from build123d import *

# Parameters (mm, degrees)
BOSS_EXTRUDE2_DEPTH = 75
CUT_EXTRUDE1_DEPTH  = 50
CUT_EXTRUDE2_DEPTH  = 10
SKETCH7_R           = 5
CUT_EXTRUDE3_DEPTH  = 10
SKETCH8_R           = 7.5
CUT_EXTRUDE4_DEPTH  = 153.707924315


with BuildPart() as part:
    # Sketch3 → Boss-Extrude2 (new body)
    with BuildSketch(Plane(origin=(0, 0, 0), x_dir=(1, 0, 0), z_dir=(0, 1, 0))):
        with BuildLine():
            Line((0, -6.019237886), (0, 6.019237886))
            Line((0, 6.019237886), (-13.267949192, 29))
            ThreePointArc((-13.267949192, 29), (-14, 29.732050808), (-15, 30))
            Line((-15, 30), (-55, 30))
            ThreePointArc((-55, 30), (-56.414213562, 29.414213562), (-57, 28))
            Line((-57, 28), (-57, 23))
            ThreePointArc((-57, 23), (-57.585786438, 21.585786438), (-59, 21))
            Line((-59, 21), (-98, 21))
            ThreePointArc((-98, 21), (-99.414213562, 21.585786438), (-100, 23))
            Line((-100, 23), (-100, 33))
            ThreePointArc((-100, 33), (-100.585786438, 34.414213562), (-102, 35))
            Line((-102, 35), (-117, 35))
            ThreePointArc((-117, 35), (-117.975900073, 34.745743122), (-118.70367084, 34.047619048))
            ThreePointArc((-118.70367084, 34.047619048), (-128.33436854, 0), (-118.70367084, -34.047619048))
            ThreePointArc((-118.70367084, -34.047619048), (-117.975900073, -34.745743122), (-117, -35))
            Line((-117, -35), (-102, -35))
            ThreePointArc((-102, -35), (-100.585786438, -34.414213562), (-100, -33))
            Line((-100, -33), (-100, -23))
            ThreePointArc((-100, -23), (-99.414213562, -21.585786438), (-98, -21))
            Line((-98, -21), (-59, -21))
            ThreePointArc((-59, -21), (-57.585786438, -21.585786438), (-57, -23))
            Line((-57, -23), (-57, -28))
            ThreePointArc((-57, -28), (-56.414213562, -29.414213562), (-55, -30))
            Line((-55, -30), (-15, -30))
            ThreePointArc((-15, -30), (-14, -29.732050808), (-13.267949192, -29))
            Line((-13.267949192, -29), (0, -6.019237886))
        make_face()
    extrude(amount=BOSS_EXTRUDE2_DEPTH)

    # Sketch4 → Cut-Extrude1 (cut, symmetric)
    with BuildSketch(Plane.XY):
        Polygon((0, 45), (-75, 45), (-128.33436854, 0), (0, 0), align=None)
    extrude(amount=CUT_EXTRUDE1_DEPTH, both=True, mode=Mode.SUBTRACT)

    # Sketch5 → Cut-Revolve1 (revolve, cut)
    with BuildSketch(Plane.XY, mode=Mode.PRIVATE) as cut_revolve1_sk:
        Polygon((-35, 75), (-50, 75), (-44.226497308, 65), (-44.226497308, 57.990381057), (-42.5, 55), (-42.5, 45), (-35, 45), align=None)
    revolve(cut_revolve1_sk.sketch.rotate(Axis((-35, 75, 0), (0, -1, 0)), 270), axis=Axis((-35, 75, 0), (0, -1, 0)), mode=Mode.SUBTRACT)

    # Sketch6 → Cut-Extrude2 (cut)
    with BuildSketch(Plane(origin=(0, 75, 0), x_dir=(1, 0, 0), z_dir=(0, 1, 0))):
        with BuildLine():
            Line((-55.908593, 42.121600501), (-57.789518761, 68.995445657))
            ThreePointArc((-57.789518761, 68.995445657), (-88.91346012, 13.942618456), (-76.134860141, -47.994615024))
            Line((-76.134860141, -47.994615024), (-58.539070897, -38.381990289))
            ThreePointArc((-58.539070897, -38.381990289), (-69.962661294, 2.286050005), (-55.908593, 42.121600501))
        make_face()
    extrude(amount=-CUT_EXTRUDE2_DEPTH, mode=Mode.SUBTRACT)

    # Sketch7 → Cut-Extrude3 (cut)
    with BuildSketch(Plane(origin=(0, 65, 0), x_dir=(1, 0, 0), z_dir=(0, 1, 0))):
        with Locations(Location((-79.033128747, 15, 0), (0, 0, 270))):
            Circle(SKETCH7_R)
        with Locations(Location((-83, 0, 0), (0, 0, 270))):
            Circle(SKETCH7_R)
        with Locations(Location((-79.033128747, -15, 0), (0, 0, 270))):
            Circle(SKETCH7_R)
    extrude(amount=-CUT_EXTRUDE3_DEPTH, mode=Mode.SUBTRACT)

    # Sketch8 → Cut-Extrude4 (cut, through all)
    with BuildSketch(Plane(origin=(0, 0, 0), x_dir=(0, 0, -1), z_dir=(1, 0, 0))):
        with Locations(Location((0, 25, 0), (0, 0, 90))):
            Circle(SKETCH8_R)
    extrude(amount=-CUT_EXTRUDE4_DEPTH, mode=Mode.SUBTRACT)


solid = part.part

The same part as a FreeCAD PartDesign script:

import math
import FreeCAD as App
import Part
import Sketcher
Q = App.Units.Quantity

doc = App.newDocument("Part")
body = doc.addObject("PartDesign::Body", "Body")

sketch1 = body.newObject("Sketcher::SketchObject", "Sketch")
sketch1.AttachmentSupport = (doc.getObject("XZ_Plane"), [""])
sketch1.MapMode = "FlatFace"
sketch1.addGeometry(Part.LineSegment(App.Vector(0, 6, 0), App.Vector(0, -6, 0)), False)
sketch1.addGeometry(Part.LineSegment(App.Vector(0, -6, 0), App.Vector(-13.3, -29, 0)), False)
sketch1.addGeometry(Part.ArcOfCircle(Part.Circle(App.Vector(-15, -28, 0), App.Vector(0, 0, 1), 2), math.radians(-90), math.radians(-30)), False)
sketch1.addGeometry(Part.LineSegment(App.Vector(-15, -30, 0), App.Vector(-55, -30, 0)), False)
sketch1.addGeometry(Part.ArcOfCircle(Part.Circle(App.Vector(-55, -28, 0), App.Vector(0, 0, 1), 2), math.radians(-180), math.radians(-90)), False)
sketch1.addGeometry(Part.LineSegment(App.Vector(-57, -28, 0), App.Vector(-57, -23, 0)), False)
sketch1.addGeometry(Part.ArcOfCircle(Part.Circle(App.Vector(-59, -23, 0), App.Vector(0, 0, 1), 2), math.radians(0), math.radians(90)), False)
sketch1.addGeometry(Part.LineSegment(App.Vector(-59, -21, 0), App.Vector(-98, -21, 0)), False)
sketch1.addGeometry(Part.ArcOfCircle(Part.Circle(App.Vector(-98, -23, 0), App.Vector(0, 0, 1), 2), math.radians(90), math.radians(180)), False)
sketch1.addGeometry(Part.LineSegment(App.Vector(-100, -23, 0), App.Vector(-100, -33, 0)), False)
sketch1.addGeometry(Part.ArcOfCircle(Part.Circle(App.Vector(-102, -33, 0), App.Vector(0, 0, 1), 2), math.radians(-90), math.radians(0)), False)
sketch1.addGeometry(Part.LineSegment(App.Vector(-102, -35, 0), App.Vector(-117, -35, 0)), False)
sketch1.addGeometry(Part.ArcOfCircle(Part.Circle(App.Vector(-117, -33, 0), App.Vector(0, 0, 1), 2), math.radians(-148), math.radians(-90)), False)
sketch1.addGeometry(Part.ArcOfCircle(Part.Circle(App.Vector(-63.3, 0, 0), App.Vector(0, 0, 1), 65), math.radians(148), math.radians(212)), False)
sketch1.addGeometry(Part.ArcOfCircle(Part.Circle(App.Vector(-117, 33, 0), App.Vector(0, 0, 1), 2), math.radians(90), math.radians(148)), False)
sketch1.addGeometry(Part.LineSegment(App.Vector(-117, 35, 0), App.Vector(-102, 35, 0)), False)
sketch1.addGeometry(Part.ArcOfCircle(Part.Circle(App.Vector(-102, 33, 0), App.Vector(0, 0, 1), 2), math.radians(0), math.radians(90)), False)
sketch1.addGeometry(Part.LineSegment(App.Vector(-100, 33, 0), App.Vector(-100, 23, 0)), False)
sketch1.addGeometry(Part.ArcOfCircle(Part.Circle(App.Vector(-98, 23, 0), App.Vector(0, 0, 1), 2), math.radians(-180), math.radians(-90)), False)
sketch1.addGeometry(Part.LineSegment(App.Vector(-98, 21, 0), App.Vector(-59, 21, 0)), False)
sketch1.addGeometry(Part.ArcOfCircle(Part.Circle(App.Vector(-59, 23, 0), App.Vector(0, 0, 1), 2), math.radians(-90), math.radians(0)), False)
sketch1.addGeometry(Part.LineSegment(App.Vector(-57, 23, 0), App.Vector(-57, 28, 0)), False)
sketch1.addGeometry(Part.ArcOfCircle(Part.Circle(App.Vector(-55, 28, 0), App.Vector(0, 0, 1), 2), math.radians(90), math.radians(180)), False)
sketch1.addGeometry(Part.LineSegment(App.Vector(-55, 30, 0), App.Vector(-15, 30, 0)), False)
sketch1.addGeometry(Part.ArcOfCircle(Part.Circle(App.Vector(-15, 28, 0), App.Vector(0, 0, 1), 2), math.radians(30), math.radians(90)), False)
sketch1.addGeometry(Part.LineSegment(App.Vector(-13.3, 29, 0), App.Vector(0, 6, 0)), False)
sketch1.addConstraint(Sketcher.Constraint("Coincident", 0, 2, 1, 1))
sketch1.addConstraint(Sketcher.Constraint("Tangent", 1, 2, 2, 2))
sketch1.addConstraint(Sketcher.Constraint("Tangent", 2, 1, 3, 1))
sketch1.addConstraint(Sketcher.Constraint("Tangent", 3, 2, 4, 2))
sketch1.addConstraint(Sketcher.Constraint("Tangent", 4, 1, 5, 1))
sketch1.addConstraint(Sketcher.Constraint("Tangent", 5, 2, 6, 1))
sketch1.addConstraint(Sketcher.Constraint("Tangent", 6, 2, 7, 1))
sketch1.addConstraint(Sketcher.Constraint("Tangent", 7, 2, 8, 1))
sketch1.addConstraint(Sketcher.Constraint("Tangent", 8, 2, 9, 1))
sketch1.addConstraint(Sketcher.Constraint("Tangent", 9, 2, 10, 2))
sketch1.addConstraint(Sketcher.Constraint("Tangent", 10, 1, 11, 1))
sketch1.addConstraint(Sketcher.Constraint("Tangent", 11, 2, 12, 2))
sketch1.addConstraint(Sketcher.Constraint("Tangent", 12, 1, 13, 2))
sketch1.addConstraint(Sketcher.Constraint("Tangent", 13, 1, 14, 2))
sketch1.addConstraint(Sketcher.Constraint("Tangent", 14, 1, 15, 1))
sketch1.addConstraint(Sketcher.Constraint("Tangent", 15, 2, 16, 2))
sketch1.addConstraint(Sketcher.Constraint("Tangent", 16, 1, 17, 1))
sketch1.addConstraint(Sketcher.Constraint("Tangent", 17, 2, 18, 1))
sketch1.addConstraint(Sketcher.Constraint("Tangent", 18, 2, 19, 1))
sketch1.addConstraint(Sketcher.Constraint("Tangent", 19, 2, 20, 1))
sketch1.addConstraint(Sketcher.Constraint("Tangent", 20, 2, 21, 1))
sketch1.addConstraint(Sketcher.Constraint("Tangent", 21, 2, 22, 2))
sketch1.addConstraint(Sketcher.Constraint("Tangent", 22, 1, 23, 1))
sketch1.addConstraint(Sketcher.Constraint("Tangent", 23, 2, 24, 2))
sketch1.addConstraint(Sketcher.Constraint("Tangent", 24, 1, 25, 1))
sketch1.addConstraint(Sketcher.Constraint("Coincident", 25, 2, 0, 1))
sketch1.addConstraint(Sketcher.Constraint("Vertical", 0))
sketch1.addConstraint(Sketcher.Constraint("Horizontal", 3))
sketch1.addConstraint(Sketcher.Constraint("Vertical", 5))
sketch1.addConstraint(Sketcher.Constraint("Horizontal", 7))
sketch1.addConstraint(Sketcher.Constraint("Vertical", 9))
sketch1.addConstraint(Sketcher.Constraint("Horizontal", 11))
sketch1.addConstraint(Sketcher.Constraint("Horizontal", 15))
sketch1.addConstraint(Sketcher.Constraint("Vertical", 17))
sketch1.addConstraint(Sketcher.Constraint("Horizontal", 19))
sketch1.addConstraint(Sketcher.Constraint("Vertical", 21))
sketch1.addConstraint(Sketcher.Constraint("Horizontal", 23))
sketch1.addConstraint(Sketcher.Constraint("Equal", 2, 4))
sketch1.addConstraint(Sketcher.Constraint("Equal", 4, 6))
sketch1.addConstraint(Sketcher.Constraint("Equal", 6, 8))
sketch1.addConstraint(Sketcher.Constraint("Equal", 8, 10))
sketch1.addConstraint(Sketcher.Constraint("Equal", 10, 12))
sketch1.addConstraint(Sketcher.Constraint("Equal", 12, 14))
sketch1.addConstraint(Sketcher.Constraint("Equal", 14, 16))
sketch1.addConstraint(Sketcher.Constraint("Equal", 16, 18))
sketch1.addConstraint(Sketcher.Constraint("Equal", 18, 20))
sketch1.addConstraint(Sketcher.Constraint("Equal", 20, 22))
sketch1.addConstraint(Sketcher.Constraint("Equal", 22, 24))
sketch1.addConstraint(Sketcher.Constraint("Symmetric", 0, 2, 25, 2, -1, 1))
sketch1.addConstraint(Sketcher.Constraint("Symmetric", 12, 3, 14, 3, -1))
sketch1.addConstraint(Sketcher.Constraint("Symmetric", 8, 3, 18, 3, -1))
sketch1.addConstraint(Sketcher.Constraint("Symmetric", 4, 3, 22, 3, -1))
sketch1.addConstraint(Sketcher.Constraint("Vertical", 2, 3, 24, 3))
sketch1.addConstraint(Sketcher.Constraint("Radius", 2, Q("2 mm")))
sketch1.addConstraint(Sketcher.Constraint("Radius", 13, Q("65 mm")))
sketch1.addConstraint(Sketcher.Constraint("DistanceX", 3, 2, 3, 1, Q("40 mm")))
sketch1.addConstraint(Sketcher.Constraint("DistanceX", 7, 2, 7, 1, Q("39 mm")))
sketch1.addConstraint(Sketcher.Constraint("DistanceX", 11, 2, 11, 1, Q("15 mm")))
sketch1.addConstraint(Sketcher.Constraint("DistanceY", 5, 1, 5, 2, Q("5 mm")))
sketch1.addConstraint(Sketcher.Constraint("DistanceY", 9, 2, 9, 1, Q("10 mm")))
sketch1.addConstraint(Sketcher.Constraint("Angle", 1, Q("-120 deg")))
sketch1.addConstraint(Sketcher.Constraint("DistanceX", 2, 3, -1, 1, Q("15 mm")))
sketch1.addConstraint(Sketcher.Constraint("DistanceY", 2, 3, -1, 1, Q("28 mm")))
pad1 = body.newObject("PartDesign::Pad", "Pad")
pad1.Profile = sketch1
pad1.Length = 75
pad1.Reversed = True

sketch2 = body.newObject("Sketcher::SketchObject", "Sketch001")
sketch2.AttachmentSupport = (doc.getObject("XY_Plane"), [""])
sketch2.MapMode = "FlatFace"
sketch2.addGeometry(Part.LineSegment(App.Vector(0, 45, 0), App.Vector(-75, 45, 0)), False)
sketch2.addGeometry(Part.LineSegment(App.Vector(-75, 45, 0), App.Vector(-128, 0, 0)), False)
sketch2.addGeometry(Part.LineSegment(App.Vector(-128, 0, 0), App.Vector(0, 0, 0)), False)
sketch2.addGeometry(Part.LineSegment(App.Vector(0, 0, 0), App.Vector(0, 45, 0)), False)
sketch2.addConstraint(Sketcher.Constraint("Coincident", 0, 2, 1, 1))
sketch2.addConstraint(Sketcher.Constraint("Coincident", 1, 2, 2, 1))
sketch2.addConstraint(Sketcher.Constraint("Coincident", 2, 2, 3, 1))
sketch2.addConstraint(Sketcher.Constraint("Coincident", 3, 2, 0, 1))
sketch2.addConstraint(Sketcher.Constraint("Horizontal", 0))
sketch2.addConstraint(Sketcher.Constraint("Horizontal", 2))
sketch2.addConstraint(Sketcher.Constraint("Vertical", 3))
sketch2.addConstraint(Sketcher.Constraint("Coincident", 2, 2, -1, 1))
sketch2.addConstraint(Sketcher.Constraint("DistanceX", 0, 2, 0, 1, Q("75 mm")))
sketch2.addConstraint(Sketcher.Constraint("DistanceY", 3, 1, 3, 2, Q("45 mm")))
sketch2.addConstraint(Sketcher.Constraint("DistanceX", 2, 1, 2, 2, Q("128.334369 mm")))
pocket1 = body.newObject("PartDesign::Pocket", "Pocket")
pocket1.Profile = sketch2
pocket1.Length = 100
pocket1.Midplane = True

sketch3 = body.newObject("Sketcher::SketchObject", "Sketch002")
sketch3.AttachmentSupport = (doc.getObject("XY_Plane"), [""])
sketch3.MapMode = "FlatFace"
sketch3.addGeometry(Part.LineSegment(App.Vector(-35, 75, 0), App.Vector(-50, 75, 0)), False)
sketch3.addGeometry(Part.LineSegment(App.Vector(-50, 75, 0), App.Vector(-44.2, 65, 0)), False)
sketch3.addGeometry(Part.LineSegment(App.Vector(-44.2, 65, 0), App.Vector(-44.2, 58, 0)), False)
sketch3.addGeometry(Part.LineSegment(App.Vector(-44.2, 58, 0), App.Vector(-42.5, 55, 0)), False)
sketch3.addGeometry(Part.LineSegment(App.Vector(-42.5, 55, 0), App.Vector(-42.5, 45, 0)), False)
sketch3.addGeometry(Part.LineSegment(App.Vector(-42.5, 45, 0), App.Vector(-35, 45, 0)), False)
sketch3.addGeometry(Part.LineSegment(App.Vector(-35, 45, 0), App.Vector(-35, 75, 0)), False)
sketch3.addGeometry(Part.LineSegment(App.Vector(-35, 75, 0), App.Vector(-35, 45, 0)), True)
sketch3.addConstraint(Sketcher.Constraint("Coincident", 0, 2, 1, 1))
sketch3.addConstraint(Sketcher.Constraint("Coincident", 1, 2, 2, 1))
sketch3.addConstraint(Sketcher.Constraint("Coincident", 2, 2, 3, 1))
sketch3.addConstraint(Sketcher.Constraint("Coincident", 3, 2, 4, 1))
sketch3.addConstraint(Sketcher.Constraint("Coincident", 4, 2, 5, 1))
sketch3.addConstraint(Sketcher.Constraint("Coincident", 5, 2, 6, 1))
sketch3.addConstraint(Sketcher.Constraint("Coincident", 6, 2, 0, 1))
sketch3.addConstraint(Sketcher.Constraint("Horizontal", 0))
sketch3.addConstraint(Sketcher.Constraint("Vertical", 2))
sketch3.addConstraint(Sketcher.Constraint("Vertical", 4))
sketch3.addConstraint(Sketcher.Constraint("Horizontal", 5))
sketch3.addConstraint(Sketcher.Constraint("Vertical", 6))
sketch3.addConstraint(Sketcher.Constraint("Vertical", 7))
sketch3.addConstraint(Sketcher.Constraint("Coincident", 7, 1, 6, 2))
sketch3.addConstraint(Sketcher.Constraint("Parallel", 1, 3))
sketch3.addConstraint(Sketcher.Constraint("Horizontal", 4, 2, 7, 2))
sketch3.addConstraint(Sketcher.Constraint("DistanceX", 0, 2, 0, 1, Q("15 mm")))
sketch3.addConstraint(Sketcher.Constraint("DistanceY", 4, 2, 4, 1, Q("10 mm")))
sketch3.addConstraint(Sketcher.Constraint("DistanceY", 6, 1, 6, 2, Q("30 mm")))
sketch3.addConstraint(Sketcher.Constraint("Angle", 1, Q("-60 deg")))
sketch3.addConstraint(Sketcher.Constraint("DistanceX", 5, 1, 5, 2, Q("7.5 mm")))
sketch3.addConstraint(Sketcher.Constraint("DistanceX", 0, 2, -1, 1, Q("50 mm")))
sketch3.addConstraint(Sketcher.Constraint("DistanceY", -1, 1, 0, 2, Q("75 mm")))
sketch3.addConstraint(Sketcher.Constraint("DistanceY", -1, 1, 1, 2, Q("65 mm")))
groove = body.newObject("PartDesign::Groove", "Groove")
groove.Profile = sketch3
groove.ReferenceAxis = (sketch3, ["Axis0"])
groove.Angle = 360

sketch4 = body.newObject("Sketcher::SketchObject", "Sketch003")
sketch4.AttachmentSupport = (doc.getObject("XZ_Plane"), [""])
sketch4.MapMode = "FlatFace"
sketch4.AttachmentOffset = App.Placement(App.Vector(0, 0, -75), App.Rotation())
sketch4.addGeometry(Part.LineSegment(App.Vector(-56, -42, 0), App.Vector(-58, -69, 0)), False)
sketch4.addGeometry(Part.ArcOfCircle(Part.Circle(App.Vector(0, 0, 0), App.Vector(0, 0, 1), 90), math.radians(148), math.radians(230)), False)
sketch4.addGeometry(Part.LineSegment(App.Vector(-76, 48, 0), App.Vector(-59, 38, 0)), False)
sketch4.addGeometry(Part.ArcOfCircle(Part.Circle(App.Vector(0, 0, 0), App.Vector(0, 0, 1), 70), math.radians(147), math.radians(217)), False)
sketch4.addConstraint(Sketcher.Constraint("Coincident", 0, 2, 1, 2))
sketch4.addConstraint(Sketcher.Constraint("Coincident", 1, 1, 2, 1))
sketch4.addConstraint(Sketcher.Constraint("Coincident", 2, 2, 3, 1))
sketch4.addConstraint(Sketcher.Constraint("Coincident", 3, 2, 0, 1))
sketch4.addConstraint(Sketcher.Constraint("Coincident", 1, 3, -1, 1))
sketch4.addConstraint(Sketcher.Constraint("Coincident", 3, 3, -1, 1))
sketch4.addConstraint(Sketcher.Constraint("Radius", 1, Q("90 mm")))
sketch4.addConstraint(Sketcher.Constraint("Radius", 3, Q("70 mm")))
sketch4.addConstraint(Sketcher.Constraint("DistanceY", 3, 2, -1, 1, Q("42.121601 mm")))
sketch4.addConstraint(Sketcher.Constraint("Distance", 0, Q("26.939589 mm")))
sketch4.addConstraint(Sketcher.Constraint("DistanceX", 1, 1, -1, 1, Q("76.13486 mm")))
sketch4.addConstraint(Sketcher.Constraint("DistanceX", 2, 2, -1, 1, Q("58.539071 mm")))
pocket2 = body.newObject("PartDesign::Pocket", "Pocket001")
pocket2.Profile = sketch4
pocket2.Length = 10
pocket2.Reversed = True

sketch5 = body.newObject("Sketcher::SketchObject", "Sketch004")
sketch5.AttachmentSupport = (doc.getObject("XZ_Plane"), [""])
sketch5.MapMode = "FlatFace"
sketch5.AttachmentOffset = App.Placement(App.Vector(0, 0, -65), App.Rotation())
sketch5.addGeometry(Part.Circle(App.Vector(-79, -15, 0), App.Vector(0, 0, 1), 5), False)
sketch5.addGeometry(Part.Circle(App.Vector(-83, 0, 0), App.Vector(0, 0, 1), 5), False)
sketch5.addGeometry(Part.Circle(App.Vector(-79, 15, 0), App.Vector(0, 0, 1), 5), False)
sketch5.addConstraint(Sketcher.Constraint("Equal", 0, 1))
sketch5.addConstraint(Sketcher.Constraint("Equal", 1, 2))
sketch5.addConstraint(Sketcher.Constraint("Symmetric", 0, 3, 2, 3, -1))
sketch5.addConstraint(Sketcher.Constraint("PointOnObject", 1, 3, -1))
sketch5.addConstraint(Sketcher.Constraint("Diameter", 0, Q("10 mm")))
sketch5.addConstraint(Sketcher.Constraint("DistanceY", 0, 3, -1, 1, Q("15 mm")))
sketch5.addConstraint(Sketcher.Constraint("DistanceX", 1, 3, -1, 1, Q("83 mm")))
sketch5.addConstraint(Sketcher.Constraint("DistanceX", 0, 3, -1, 1, Q("79.033129 mm")))
pocket3 = body.newObject("PartDesign::Pocket", "Pocket002")
pocket3.Profile = sketch5
pocket3.Length = 10
pocket3.Reversed = True

sketch6 = body.newObject("Sketcher::SketchObject", "Sketch005")
sketch6.AttachmentSupport = (doc.getObject("YZ_Plane"), [""])
sketch6.MapMode = "FlatFace"
sketch6.addGeometry(Part.Circle(App.Vector(25, 0, 0), App.Vector(0, 0, 1), 8), False)
sketch6.addConstraint(Sketcher.Constraint("PointOnObject", 0, 3, -1))
sketch6.addConstraint(Sketcher.Constraint("Diameter", 0, Q("15 mm")))
sketch6.addConstraint(Sketcher.Constraint("DistanceX", -1, 1, 0, 3, Q("25 mm")))
pocket4 = body.newObject("PartDesign::Pocket", "Pocket003")
pocket4.Profile = sketch6
pocket4.Type = "ThroughAll"

doc.recompute()
